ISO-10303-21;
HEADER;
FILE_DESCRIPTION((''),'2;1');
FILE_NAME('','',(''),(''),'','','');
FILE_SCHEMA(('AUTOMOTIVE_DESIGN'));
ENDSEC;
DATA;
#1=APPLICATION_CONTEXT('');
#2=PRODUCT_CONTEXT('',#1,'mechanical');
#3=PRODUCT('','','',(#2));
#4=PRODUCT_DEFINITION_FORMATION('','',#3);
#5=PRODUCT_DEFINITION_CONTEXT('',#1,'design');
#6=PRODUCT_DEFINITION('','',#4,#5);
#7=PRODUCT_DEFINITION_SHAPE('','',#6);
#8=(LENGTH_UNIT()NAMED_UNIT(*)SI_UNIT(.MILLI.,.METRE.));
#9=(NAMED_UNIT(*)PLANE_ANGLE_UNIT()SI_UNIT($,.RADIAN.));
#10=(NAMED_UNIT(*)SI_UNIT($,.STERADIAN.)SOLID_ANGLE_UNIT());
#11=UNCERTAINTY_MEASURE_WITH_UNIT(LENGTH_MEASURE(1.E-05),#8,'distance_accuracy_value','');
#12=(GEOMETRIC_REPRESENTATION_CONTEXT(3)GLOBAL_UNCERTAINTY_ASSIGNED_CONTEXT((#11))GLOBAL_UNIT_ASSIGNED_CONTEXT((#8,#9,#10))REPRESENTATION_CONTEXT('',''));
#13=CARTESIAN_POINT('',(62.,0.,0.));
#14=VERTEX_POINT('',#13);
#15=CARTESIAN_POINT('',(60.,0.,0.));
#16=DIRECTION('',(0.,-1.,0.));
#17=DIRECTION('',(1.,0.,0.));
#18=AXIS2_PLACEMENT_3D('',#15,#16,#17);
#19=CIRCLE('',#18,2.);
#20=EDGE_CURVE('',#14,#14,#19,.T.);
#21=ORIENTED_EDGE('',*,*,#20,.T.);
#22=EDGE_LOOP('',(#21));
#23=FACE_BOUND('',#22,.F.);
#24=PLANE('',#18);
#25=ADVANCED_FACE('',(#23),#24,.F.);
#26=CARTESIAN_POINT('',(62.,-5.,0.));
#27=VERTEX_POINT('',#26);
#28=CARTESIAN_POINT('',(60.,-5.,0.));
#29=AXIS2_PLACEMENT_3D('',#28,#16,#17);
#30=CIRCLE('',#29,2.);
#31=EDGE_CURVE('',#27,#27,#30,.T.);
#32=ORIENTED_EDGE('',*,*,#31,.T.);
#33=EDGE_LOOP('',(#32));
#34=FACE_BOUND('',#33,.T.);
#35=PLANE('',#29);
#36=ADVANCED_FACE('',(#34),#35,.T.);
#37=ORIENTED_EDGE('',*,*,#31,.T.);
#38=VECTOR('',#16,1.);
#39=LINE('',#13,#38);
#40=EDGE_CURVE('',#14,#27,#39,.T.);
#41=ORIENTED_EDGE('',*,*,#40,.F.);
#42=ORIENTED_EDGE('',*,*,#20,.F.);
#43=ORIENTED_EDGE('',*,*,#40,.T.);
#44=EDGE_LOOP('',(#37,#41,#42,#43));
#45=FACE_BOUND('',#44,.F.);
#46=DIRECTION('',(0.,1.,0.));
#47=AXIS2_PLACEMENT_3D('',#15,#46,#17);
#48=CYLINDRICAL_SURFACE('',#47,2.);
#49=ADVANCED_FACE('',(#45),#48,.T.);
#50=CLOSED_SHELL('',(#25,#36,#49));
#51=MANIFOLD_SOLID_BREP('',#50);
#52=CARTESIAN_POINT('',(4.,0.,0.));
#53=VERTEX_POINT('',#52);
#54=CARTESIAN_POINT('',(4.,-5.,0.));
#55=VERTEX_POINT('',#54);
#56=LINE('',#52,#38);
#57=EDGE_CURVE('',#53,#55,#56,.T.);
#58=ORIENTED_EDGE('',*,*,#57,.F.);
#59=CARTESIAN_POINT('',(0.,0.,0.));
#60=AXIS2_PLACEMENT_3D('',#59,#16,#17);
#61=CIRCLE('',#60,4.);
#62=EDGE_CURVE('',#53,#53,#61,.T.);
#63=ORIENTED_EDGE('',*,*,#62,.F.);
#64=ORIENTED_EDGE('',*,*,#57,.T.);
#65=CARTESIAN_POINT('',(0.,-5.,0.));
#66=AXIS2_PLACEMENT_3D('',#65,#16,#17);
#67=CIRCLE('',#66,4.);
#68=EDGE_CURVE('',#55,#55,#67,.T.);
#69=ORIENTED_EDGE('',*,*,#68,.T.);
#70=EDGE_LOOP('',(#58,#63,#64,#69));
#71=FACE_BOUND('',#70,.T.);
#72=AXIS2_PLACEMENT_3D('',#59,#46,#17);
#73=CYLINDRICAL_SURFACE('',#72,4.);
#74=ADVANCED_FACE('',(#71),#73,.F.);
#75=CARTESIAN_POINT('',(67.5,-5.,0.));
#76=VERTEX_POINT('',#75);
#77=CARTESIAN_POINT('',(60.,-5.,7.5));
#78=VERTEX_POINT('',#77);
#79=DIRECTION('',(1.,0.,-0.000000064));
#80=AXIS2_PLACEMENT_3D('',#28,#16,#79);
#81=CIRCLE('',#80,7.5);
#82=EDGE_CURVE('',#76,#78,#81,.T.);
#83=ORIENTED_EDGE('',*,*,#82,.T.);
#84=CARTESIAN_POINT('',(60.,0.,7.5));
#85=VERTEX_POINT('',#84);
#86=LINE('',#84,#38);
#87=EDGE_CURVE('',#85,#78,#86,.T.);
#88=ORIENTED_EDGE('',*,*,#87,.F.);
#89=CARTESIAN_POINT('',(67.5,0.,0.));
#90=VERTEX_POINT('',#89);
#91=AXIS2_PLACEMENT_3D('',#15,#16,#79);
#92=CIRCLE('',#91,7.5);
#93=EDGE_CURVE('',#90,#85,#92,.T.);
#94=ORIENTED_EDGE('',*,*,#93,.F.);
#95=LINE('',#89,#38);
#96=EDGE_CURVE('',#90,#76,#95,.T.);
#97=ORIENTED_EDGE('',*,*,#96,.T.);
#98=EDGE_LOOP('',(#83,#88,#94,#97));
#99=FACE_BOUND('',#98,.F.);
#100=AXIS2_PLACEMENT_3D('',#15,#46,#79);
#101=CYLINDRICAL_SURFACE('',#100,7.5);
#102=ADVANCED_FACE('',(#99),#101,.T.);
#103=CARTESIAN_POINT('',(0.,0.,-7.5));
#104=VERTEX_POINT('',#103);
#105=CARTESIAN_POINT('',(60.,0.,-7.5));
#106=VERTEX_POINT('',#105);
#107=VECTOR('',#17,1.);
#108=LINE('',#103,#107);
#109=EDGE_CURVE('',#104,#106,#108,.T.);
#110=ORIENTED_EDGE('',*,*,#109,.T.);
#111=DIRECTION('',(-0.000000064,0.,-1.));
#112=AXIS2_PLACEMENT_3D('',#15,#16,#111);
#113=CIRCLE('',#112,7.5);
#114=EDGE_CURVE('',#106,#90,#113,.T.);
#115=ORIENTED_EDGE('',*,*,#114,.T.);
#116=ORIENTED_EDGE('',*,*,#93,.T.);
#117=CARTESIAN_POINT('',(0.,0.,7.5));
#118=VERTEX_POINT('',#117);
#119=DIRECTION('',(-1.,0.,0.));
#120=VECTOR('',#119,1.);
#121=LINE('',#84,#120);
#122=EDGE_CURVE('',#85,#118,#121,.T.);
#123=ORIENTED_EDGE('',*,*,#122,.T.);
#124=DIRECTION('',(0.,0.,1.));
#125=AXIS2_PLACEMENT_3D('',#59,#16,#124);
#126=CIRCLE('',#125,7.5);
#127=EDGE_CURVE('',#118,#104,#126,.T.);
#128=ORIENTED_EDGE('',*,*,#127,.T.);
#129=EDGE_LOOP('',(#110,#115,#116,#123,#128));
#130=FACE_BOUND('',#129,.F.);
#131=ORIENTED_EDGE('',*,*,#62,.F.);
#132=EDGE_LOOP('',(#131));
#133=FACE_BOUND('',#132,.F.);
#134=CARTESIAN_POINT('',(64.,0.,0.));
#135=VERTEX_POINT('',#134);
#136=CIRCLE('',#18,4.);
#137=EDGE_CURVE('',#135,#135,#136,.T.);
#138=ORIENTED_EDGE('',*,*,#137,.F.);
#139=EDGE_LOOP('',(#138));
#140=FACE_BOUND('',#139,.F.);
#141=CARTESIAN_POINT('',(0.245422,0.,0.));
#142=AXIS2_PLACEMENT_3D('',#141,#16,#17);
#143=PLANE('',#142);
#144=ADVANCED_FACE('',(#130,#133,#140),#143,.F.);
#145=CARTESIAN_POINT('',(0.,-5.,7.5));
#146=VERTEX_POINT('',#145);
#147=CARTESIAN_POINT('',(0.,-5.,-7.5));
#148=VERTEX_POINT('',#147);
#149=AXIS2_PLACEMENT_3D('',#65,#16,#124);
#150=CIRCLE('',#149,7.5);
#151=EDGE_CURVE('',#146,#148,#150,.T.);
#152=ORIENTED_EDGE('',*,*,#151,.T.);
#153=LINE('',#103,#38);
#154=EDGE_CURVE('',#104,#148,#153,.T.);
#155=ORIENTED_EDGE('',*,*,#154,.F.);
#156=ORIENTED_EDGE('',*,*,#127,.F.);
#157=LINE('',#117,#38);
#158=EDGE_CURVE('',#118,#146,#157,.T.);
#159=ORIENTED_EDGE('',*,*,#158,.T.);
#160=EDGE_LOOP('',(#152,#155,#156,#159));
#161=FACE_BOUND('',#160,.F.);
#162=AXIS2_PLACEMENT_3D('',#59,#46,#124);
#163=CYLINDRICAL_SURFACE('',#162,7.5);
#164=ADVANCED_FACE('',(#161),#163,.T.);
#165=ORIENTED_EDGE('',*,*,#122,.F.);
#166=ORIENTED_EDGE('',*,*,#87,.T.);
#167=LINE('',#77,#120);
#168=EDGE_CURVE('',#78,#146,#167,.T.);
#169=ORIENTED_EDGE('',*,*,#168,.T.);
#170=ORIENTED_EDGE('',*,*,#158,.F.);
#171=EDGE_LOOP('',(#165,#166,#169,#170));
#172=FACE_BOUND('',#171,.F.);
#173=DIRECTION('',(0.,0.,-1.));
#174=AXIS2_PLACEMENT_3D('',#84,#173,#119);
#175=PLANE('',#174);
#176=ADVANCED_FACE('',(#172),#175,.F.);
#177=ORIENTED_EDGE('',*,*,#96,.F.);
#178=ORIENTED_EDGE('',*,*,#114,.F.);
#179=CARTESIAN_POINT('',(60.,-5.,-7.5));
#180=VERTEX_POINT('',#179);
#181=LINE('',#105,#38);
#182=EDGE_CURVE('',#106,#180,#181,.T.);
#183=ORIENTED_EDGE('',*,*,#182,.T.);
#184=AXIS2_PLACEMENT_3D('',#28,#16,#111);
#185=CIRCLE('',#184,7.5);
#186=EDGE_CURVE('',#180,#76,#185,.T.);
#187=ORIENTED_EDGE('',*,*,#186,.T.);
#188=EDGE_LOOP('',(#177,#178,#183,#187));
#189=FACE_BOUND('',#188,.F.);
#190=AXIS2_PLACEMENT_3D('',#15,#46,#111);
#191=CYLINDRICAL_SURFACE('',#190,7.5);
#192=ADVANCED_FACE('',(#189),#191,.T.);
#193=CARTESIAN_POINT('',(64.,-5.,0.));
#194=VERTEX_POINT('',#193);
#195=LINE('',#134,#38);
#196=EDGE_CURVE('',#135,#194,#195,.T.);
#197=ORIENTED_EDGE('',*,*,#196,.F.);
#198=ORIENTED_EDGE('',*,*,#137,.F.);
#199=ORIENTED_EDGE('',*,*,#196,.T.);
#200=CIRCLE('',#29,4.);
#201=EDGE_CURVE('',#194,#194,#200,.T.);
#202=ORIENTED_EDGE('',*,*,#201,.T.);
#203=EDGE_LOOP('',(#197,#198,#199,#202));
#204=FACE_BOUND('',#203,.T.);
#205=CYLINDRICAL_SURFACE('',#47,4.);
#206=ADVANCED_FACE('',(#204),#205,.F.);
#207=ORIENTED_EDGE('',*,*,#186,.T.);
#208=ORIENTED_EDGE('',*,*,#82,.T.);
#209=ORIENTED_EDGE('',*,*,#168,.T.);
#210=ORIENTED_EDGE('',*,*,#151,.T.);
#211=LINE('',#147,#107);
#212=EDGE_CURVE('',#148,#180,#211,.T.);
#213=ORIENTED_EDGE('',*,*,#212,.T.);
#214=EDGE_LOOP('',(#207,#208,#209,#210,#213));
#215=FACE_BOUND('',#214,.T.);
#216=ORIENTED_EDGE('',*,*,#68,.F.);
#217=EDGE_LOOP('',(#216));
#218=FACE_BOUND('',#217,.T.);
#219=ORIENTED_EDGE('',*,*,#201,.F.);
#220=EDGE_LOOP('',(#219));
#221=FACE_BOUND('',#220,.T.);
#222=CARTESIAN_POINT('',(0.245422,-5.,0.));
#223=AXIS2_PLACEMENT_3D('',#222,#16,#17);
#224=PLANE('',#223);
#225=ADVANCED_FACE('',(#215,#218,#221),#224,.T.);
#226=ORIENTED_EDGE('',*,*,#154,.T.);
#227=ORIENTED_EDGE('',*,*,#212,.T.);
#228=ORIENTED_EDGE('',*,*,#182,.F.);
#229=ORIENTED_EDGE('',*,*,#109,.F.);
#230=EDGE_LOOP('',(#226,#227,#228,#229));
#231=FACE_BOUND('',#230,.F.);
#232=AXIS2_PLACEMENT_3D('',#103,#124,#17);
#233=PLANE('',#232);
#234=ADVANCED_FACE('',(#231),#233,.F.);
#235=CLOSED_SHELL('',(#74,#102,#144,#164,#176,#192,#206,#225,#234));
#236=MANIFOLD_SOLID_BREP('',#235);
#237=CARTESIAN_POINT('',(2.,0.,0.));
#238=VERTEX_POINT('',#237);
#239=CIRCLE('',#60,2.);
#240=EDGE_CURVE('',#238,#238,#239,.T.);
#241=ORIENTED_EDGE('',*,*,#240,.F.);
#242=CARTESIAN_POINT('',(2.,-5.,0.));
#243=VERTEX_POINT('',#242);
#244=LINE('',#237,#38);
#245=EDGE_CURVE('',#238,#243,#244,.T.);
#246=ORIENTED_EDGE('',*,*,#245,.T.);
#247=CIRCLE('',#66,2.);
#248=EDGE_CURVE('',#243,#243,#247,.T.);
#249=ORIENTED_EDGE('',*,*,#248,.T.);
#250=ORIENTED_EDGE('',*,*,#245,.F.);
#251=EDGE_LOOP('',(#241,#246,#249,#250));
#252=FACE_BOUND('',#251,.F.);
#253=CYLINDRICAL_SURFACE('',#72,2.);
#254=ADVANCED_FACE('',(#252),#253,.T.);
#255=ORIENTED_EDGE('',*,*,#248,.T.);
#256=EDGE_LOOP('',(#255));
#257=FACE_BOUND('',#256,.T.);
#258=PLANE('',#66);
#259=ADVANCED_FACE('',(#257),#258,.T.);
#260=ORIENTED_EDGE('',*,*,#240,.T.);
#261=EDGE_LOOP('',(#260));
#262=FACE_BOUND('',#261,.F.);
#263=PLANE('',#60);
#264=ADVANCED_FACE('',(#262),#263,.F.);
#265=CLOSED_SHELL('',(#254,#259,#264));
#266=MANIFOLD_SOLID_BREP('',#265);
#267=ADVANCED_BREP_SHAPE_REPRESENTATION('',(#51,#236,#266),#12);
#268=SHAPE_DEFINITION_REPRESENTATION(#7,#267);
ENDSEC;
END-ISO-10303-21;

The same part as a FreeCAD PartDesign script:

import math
import FreeCAD as App
import Part
import Sketcher

V = App.Vector

doc = App.newDocument("Part")
body = doc.addObject("PartDesign::Body", "Body")
body.AllowCompound = True

# Sketch on XZ plane
sketch1 = doc.addObject("Sketcher::SketchObject", "Sketch")
body.addObject(sketch1)
sketch1.AttachmentSupport = (doc.XZ_Plane, [""])
sketch1.MapMode = "FlatFace"
sketch1.addGeometry(Part.ArcOfCircle(Part.Circle(V(0, 0, 0), V(0, 0, 1), 7.5), math.radians(90), math.radians(270)), False)
sketch1.addGeometry(Part.LineSegment(V(0, -7.5, 0), V(60, -7.5, 0)), False)
sketch1.addGeometry(Part.ArcOfCircle(Part.Circle(V(60, 0, 0), V(0, 0, 1), 7.5), math.radians(-90.000004), math.radians(0.000004)), False)
sketch1.addGeometry(Part.ArcOfCircle(Part.Circle(V(60, 0, 0), V(0, 0, 1), 7.5), math.radians(-0.000004), math.radians(90.000004)), False)
sketch1.addGeometry(Part.LineSegment(V(60, 7.5, 0), V(0, 7.5, 0)), False)
sketch1.addGeometry(Part.Circle(V(0, 0, 0), V(0, 0, 1), 4), False)
sketch1.addGeometry(Part.Circle(V(60, 0, 0), V(0, 0, 1), 4), False)
sketch1.addGeometry(Part.Circle(V(60, 0, 0), V(0, 0, 1), 2), False)
sketch1.addGeometry(Part.Circle(V(0, 0, 0), V(0, 0, 1), 2), False)
sketch1.addConstraint(Sketcher.Constraint("Tangent", 0, 2, 1, 1))
sketch1.addConstraint(Sketcher.Constraint("Tangent", 1, 2, 2, 1))
sketch1.addConstraint(Sketcher.Constraint("Tangent", 2, 2, 3, 1))
sketch1.addConstraint(Sketcher.Constraint("Tangent", 3, 2, 4, 1))
sketch1.addConstraint(Sketcher.Constraint("Tangent", 4, 2, 0, 1))
sketch1.addConstraint(Sketcher.Constraint("Horizontal", 1))
sketch1.addConstraint(Sketcher.Constraint("Horizontal", 4))
sketch1.addConstraint(Sketcher.Constraint("Coincident", 0, 3, -1, 1))
sketch1.addConstraint(Sketcher.Constraint("Coincident", 5, 3, -1, 1))
sketch1.addConstraint(Sketcher.Constraint("Coincident", 8, 3, -1, 1))
sketch1.addConstraint(Sketcher.Constraint("Coincident", 6, 3, 2, 3))
sketch1.addConstraint(Sketcher.Constraint("Coincident", 7, 3, 2, 3))
sketch1.addConstraint(Sketcher.Constraint("Equal", 0, 2))
sketch1.addConstraint(Sketcher.Constraint("Equal", 5, 6))
sketch1.addConstraint(Sketcher.Constraint("Equal", 7, 8))
sketch1.addConstraint(Sketcher.Constraint("PointOnObject", 2, 2, -1))
sketch1.addConstraint(Sketcher.Constraint("Diameter", 5, 8.0))
sketch1.addConstraint(Sketcher.Constraint("Diameter", 7, 4.0))
sketch1.addConstraint(Sketcher.Constraint("Radius", 0, 7.5))
sketch1.addConstraint(Sketcher.Constraint("DistanceX", 1, 1, 1, 2, 60.0))
pad1 = doc.addObject("PartDesign::Pad", "Pad")
body.addObject(pad1)
pad1.Profile = sketch1
pad1.Length = 5

doc.recompute()
